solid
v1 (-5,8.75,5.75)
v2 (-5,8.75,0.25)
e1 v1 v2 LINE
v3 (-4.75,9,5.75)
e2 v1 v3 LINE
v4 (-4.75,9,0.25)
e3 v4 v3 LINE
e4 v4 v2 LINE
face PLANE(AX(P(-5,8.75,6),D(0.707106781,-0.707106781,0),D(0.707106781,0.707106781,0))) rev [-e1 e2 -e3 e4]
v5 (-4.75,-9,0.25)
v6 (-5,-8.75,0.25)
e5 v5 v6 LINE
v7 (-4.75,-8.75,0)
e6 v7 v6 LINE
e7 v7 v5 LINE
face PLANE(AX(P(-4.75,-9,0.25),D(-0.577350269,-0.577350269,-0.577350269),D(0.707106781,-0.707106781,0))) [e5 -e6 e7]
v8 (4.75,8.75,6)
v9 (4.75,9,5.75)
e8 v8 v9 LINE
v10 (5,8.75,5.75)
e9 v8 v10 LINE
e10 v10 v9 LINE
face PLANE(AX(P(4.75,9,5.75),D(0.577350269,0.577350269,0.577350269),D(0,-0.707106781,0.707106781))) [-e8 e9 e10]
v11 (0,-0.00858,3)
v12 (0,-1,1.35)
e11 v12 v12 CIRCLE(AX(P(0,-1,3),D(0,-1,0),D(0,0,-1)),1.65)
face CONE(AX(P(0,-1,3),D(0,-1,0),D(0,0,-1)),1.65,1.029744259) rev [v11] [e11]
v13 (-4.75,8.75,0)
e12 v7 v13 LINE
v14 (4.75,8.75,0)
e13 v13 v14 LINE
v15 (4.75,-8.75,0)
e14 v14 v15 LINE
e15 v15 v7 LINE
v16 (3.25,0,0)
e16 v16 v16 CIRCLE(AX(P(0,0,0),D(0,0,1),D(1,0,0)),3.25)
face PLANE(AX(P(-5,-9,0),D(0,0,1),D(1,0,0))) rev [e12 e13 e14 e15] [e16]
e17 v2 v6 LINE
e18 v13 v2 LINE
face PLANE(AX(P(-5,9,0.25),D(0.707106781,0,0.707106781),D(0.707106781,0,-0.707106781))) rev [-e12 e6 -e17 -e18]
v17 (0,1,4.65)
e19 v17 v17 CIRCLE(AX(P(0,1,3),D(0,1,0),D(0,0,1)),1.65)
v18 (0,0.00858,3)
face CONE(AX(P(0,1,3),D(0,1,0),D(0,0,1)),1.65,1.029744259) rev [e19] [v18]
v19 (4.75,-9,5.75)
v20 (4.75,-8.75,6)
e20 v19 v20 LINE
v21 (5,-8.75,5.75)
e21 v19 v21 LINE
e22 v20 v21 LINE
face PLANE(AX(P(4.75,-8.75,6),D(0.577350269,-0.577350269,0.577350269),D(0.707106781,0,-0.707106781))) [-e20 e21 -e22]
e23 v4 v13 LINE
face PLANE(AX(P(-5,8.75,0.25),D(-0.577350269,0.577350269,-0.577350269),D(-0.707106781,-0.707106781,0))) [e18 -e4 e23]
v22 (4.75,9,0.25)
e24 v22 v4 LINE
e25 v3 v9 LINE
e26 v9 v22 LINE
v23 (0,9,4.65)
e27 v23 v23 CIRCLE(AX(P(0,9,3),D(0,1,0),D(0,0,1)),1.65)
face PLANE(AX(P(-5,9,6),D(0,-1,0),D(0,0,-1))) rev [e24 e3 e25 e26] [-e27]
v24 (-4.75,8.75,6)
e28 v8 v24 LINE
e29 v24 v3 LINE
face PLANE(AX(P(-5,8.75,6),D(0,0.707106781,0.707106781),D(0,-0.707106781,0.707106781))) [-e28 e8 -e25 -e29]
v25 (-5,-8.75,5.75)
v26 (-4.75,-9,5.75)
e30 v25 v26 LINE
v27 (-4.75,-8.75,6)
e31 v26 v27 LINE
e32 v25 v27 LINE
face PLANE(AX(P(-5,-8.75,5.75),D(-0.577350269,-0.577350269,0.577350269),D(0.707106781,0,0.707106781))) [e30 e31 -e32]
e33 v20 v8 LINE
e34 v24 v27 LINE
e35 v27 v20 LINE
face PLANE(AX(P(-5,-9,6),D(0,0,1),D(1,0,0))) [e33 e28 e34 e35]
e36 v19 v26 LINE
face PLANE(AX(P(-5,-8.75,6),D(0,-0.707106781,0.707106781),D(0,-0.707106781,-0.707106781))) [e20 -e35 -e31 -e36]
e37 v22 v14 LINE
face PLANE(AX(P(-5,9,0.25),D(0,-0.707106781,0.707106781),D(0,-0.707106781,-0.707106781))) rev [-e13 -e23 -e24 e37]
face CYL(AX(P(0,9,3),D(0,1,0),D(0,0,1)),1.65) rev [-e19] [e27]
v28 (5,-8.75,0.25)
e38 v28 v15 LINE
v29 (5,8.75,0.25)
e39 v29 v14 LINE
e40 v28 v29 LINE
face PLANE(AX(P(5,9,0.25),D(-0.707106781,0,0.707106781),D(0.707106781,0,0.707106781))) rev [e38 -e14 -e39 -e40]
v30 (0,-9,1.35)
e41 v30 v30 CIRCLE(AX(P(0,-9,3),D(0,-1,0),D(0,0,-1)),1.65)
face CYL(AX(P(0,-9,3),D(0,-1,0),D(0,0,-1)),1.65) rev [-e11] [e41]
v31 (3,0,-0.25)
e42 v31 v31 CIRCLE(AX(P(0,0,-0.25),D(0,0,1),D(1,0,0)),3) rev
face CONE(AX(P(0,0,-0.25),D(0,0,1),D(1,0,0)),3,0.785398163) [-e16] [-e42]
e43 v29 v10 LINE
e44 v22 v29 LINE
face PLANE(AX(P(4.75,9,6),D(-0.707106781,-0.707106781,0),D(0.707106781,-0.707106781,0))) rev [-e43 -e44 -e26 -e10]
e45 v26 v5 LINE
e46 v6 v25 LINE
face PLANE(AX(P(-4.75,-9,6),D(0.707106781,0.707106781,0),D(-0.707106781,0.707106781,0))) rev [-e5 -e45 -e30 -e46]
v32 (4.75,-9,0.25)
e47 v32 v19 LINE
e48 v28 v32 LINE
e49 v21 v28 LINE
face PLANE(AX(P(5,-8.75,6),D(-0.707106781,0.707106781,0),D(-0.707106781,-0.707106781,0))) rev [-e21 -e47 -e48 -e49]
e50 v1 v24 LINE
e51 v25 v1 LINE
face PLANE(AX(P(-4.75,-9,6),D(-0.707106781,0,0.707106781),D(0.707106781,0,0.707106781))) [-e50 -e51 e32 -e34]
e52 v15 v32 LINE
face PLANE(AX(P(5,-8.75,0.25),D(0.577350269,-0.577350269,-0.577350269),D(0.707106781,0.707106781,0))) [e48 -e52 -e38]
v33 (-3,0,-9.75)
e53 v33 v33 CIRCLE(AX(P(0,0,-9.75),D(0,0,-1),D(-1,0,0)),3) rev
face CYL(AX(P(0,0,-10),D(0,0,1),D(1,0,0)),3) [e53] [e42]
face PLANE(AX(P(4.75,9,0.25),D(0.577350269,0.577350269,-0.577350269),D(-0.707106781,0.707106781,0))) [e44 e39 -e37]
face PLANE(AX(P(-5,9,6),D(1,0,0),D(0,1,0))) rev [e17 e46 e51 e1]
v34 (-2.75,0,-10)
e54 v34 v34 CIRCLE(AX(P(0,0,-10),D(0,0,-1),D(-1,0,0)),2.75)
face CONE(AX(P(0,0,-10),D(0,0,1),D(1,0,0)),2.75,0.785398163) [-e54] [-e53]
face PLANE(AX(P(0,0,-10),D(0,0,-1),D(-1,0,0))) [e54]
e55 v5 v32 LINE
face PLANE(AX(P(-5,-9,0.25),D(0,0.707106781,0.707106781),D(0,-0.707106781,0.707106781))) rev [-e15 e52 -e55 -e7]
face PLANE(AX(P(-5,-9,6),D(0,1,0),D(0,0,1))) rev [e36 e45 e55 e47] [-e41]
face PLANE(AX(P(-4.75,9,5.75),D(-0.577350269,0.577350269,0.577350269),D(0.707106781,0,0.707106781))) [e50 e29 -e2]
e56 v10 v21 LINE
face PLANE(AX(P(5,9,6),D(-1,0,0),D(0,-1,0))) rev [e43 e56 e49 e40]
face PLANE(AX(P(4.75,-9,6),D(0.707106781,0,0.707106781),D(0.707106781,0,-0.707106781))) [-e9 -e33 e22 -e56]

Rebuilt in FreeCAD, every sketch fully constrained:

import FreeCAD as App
import Part
import Sketcher

V = App.Vector


def edges_at(feature, points):
    """Names of the edges that pass closest to the given points."""
    edges = feature.Shape.Edges
    near = lambda p: min(range(len(edges)), key=lambda i: edges[i].distToShape(Part.Vertex(*p))[0])
    return sorted({f"Edge{near(p) + 1}" for p in points})


def add_polygon(sketch, points):
    """Adds a closed chain of lines whose ends are joined by coincident constraints."""
    first, n = sketch.GeometryCount, len(points)
    for a, b in zip(points, points[1:] + points[:1]):
        sketch.addGeometry(Part.LineSegment(App.Vector(*a, 0), App.Vector(*b, 0)), False)
    for i in range(n):
        sketch.addConstraint(Sketcher.Constraint("Coincident", first + i, 2, first + (i + 1) % n, 1))

doc = App.newDocument("Part")
params = doc.addObject("Spreadsheet::Sheet", "Params")
for row, (alias, value) in enumerate([
    ("sketch1_width", "10 mm"),
    ("sketch1_height", "18 mm"),
    ("pad1_length", "6 mm"),
    ("sketch2_diameter", "6 mm"),
    ("pad2_length", "10 mm"),
    ("sketch3_diameter", "3.3 mm"),
    ("hole_diameter", "3.3 mm"),
    ("hole_depth", "8 mm"),
    ("sketch4_diameter", "3.3 mm"),
    ("hole2_diameter", "3.3 mm"),
    ("hole2_depth", "8 mm"),
    ("chamfer_size", "0.25 mm"),
], start=1):
    params.set(f"A{row}", alias)
    params.set(f"B{row}", "=" + value)
    params.setAlias(f"B{row}", alias)

body = doc.addObject("PartDesign::Body", "Body")

# Sketch on XY plane
sketch1 = body.newObject("Sketcher::SketchObject", "Sketch")
sketch1.AttachmentSupport = (doc.getObject("XY_Plane"), [""])
sketch1.MapMode = "FlatFace"
add_polygon(sketch1, [(-5, 9), (-5, -9), (5, -9), (5, 9)])  # lines 0-3
sketch1.addConstraint(Sketcher.Constraint("Vertical", 0))
sketch1.addConstraint(Sketcher.Constraint("Horizontal", 1))
sketch1.addConstraint(Sketcher.Constraint("Vertical", 2))
sketch1.addConstraint(Sketcher.Constraint("Horizontal", 3))
sketch1.addConstraint(Sketcher.Constraint("Symmetric", 0, 2, 2, 2, -1, 1))
sketch1.addConstraint(Sketcher.Constraint("DistanceX", 1, 1, 1, 2, 10.0))
sketch1.addConstraint(Sketcher.Constraint("DistanceY", 0, 2, 0, 1, 18.0))
sketch1.setExpression("Constraints[9]", "Params.sketch1_width")
sketch1.setExpression("Constraints[10]", "Params.sketch1_height")
pad1 = body.newObject("PartDesign::Pad", "Pad")
pad1.Profile = sketch1
pad1.setExpression("Length", "Params.pad1_length")

# Sketch on XY plane
sketch2 = body.newObject("Sketcher::SketchObject", "Sketch001")
sketch2.AttachmentSupport = (doc.getObject("XY_Plane"), [""])
sketch2.MapMode = "FlatFace"
sketch2.addGeometry(Part.Circle(V(0, 0, 0), V(0, 0, 1), 3), False)
sketch2.addConstraint(Sketcher.Constraint("Coincident", 0, 3, -1, 1))
sketch2.addConstraint(Sketcher.Constraint("Diameter", 0, 6.0))
sketch2.setExpression("Constraints[1]", "Params.sketch2_diameter")
pad2 = body.newObject("PartDesign::Pad", "Pad001")
pad2.Profile = sketch2
pad2.setExpression("Length", "Params.pad2_length")
pad2.Reversed = True

# Sketch on XZ plane
sketch3 = body.newObject("Sketcher::SketchObject", "Sketch002")
sketch3.AttachmentSupport = (doc.getObject("XZ_Plane"), [""])
sketch3.MapMode = "FlatFace"
sketch3.AttachmentOffset = App.Placement(V(0, 0, 9), App.Rotation())
sketch3.addGeometry(Part.Circle(V(0, 3, 0), V(0, 0, 1), 1.65), False)
sketch3.addConstraint(Sketcher.Constraint("PointOnObject", 0, 3, -2))
sketch3.addConstraint(Sketcher.Constraint("Diameter", 0, 3.3))
sketch3.addConstraint(Sketcher.Constraint("DistanceY", -1, 1, 0, 3, 3.0))
sketch3.setExpression("Constraints[1]", "Params.sketch3_diameter")
doc.recompute()
hole = body.newObject("PartDesign::Hole", "Hole")
hole.Profile = sketch3
hole.ThreadType = "None"
hole.setExpression("Diameter", "Params.hole_diameter")
hole.DepthType = "Dimension"
hole.setExpression("Depth", "Params.hole_depth")
hole.DrillPoint = "Angled"
hole.DrillPointAngle = 118

# Sketch on XZ plane
sketch4 = body.newObject("Sketcher::SketchObject", "Sketch003")
sketch4.AttachmentSupport = (doc.getObject("XZ_Plane"), [""])
sketch4.MapMode = "FlatFace"
sketch4.AttachmentOffset = App.Placement(V(0, 0, -9), App.Rotation())
sketch4.addGeometry(Part.Circle(V(0, 3, 0), V(0, 0, 1), 1.65), False)
sketch4.addConstraint(Sketcher.Constraint("PointOnObject", 0, 3, -2))
sketch4.addConstraint(Sketcher.Constraint("Diameter", 0, 3.3))
sketch4.addConstraint(Sketcher.Constraint("DistanceY", -1, 1, 0, 3, 3.0))
sketch4.setExpression("Constraints[1]", "Params.sketch4_diameter")
doc.recompute()
hole2 = body.newObject("PartDesign::Hole", "Hole001")
hole2.Profile = sketch4
hole2.ThreadType = "None"
hole2.setExpression("Diameter", "Params.hole2_diameter")
hole2.DepthType = "Dimension"
hole2.setExpression("Depth", "Params.hole2_depth")
hole2.DrillPoint = "Angled"
hole2.DrillPointAngle = 118
hole2.Reversed = True
doc.recompute()

chamfer = body.newObject("PartDesign::Chamfer", "Chamfer")
chamfer.Base = (hole2, edges_at(hole2, [
    (5, 0, 6),
    (-3, 0, 0),
    (0, 9, 6),
    (-3, 0, -10),
    (-5, 0, 6),
    (0, 9, 0),
    (5, 0, 0),
    (0, -9, 0),
    (-5, 0, 0),
    (0, -9, 6),
    (-5, 9, 3),
    (5, 9, 3),
    (5, -9, 3),
    (-5, -9, 3),
]))
chamfer.setExpression("Size", "Params.chamfer_size")

doc.recompute()
